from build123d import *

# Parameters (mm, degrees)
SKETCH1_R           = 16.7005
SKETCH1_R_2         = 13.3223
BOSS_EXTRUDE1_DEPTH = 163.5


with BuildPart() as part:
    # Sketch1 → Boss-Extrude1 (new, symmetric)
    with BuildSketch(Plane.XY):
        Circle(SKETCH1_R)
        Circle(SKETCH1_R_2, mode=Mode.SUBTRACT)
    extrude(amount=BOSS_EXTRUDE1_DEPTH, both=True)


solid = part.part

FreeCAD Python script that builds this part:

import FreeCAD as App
import Part
import Sketcher

V = App.Vector
Q = App.Units.Quantity

doc = App.newDocument("Part")
body = doc.addObject("PartDesign::Body", "Body")

# Sketch on XY plane
sketch1 = doc.addObject("Sketcher::SketchObject", "Sketch")
body.addObject(sketch1)
sketch1.AttachmentSupport = (doc.XY_Plane, [""])
sketch1.MapMode = "FlatFace"
sketch1.addGeometry([
    Part.Circle(V(0, 0, 0), V(0, 0, 1), 17),
    Part.Circle(V(0, 0, 0), V(0, 0, 1), 13),
], False)
sketch1.addConstraint([
    Sketcher.Constraint("Coincident", 0, 3, -1, 1),
    Sketcher.Constraint("Coincident", 1, 3, -1, 1),
    Sketcher.Constraint("Diameter", 0, Q("1.315 in")),
    Sketcher.Constraint("Diameter", 1, Q("1.049 in")),
])
pad1 = doc.addObject("PartDesign::Pad", "Pad")
body.addObject(pad1)
pad1.Profile = sketch1
pad1.Length = 327
pad1.Midplane = True

doc.recompute()
